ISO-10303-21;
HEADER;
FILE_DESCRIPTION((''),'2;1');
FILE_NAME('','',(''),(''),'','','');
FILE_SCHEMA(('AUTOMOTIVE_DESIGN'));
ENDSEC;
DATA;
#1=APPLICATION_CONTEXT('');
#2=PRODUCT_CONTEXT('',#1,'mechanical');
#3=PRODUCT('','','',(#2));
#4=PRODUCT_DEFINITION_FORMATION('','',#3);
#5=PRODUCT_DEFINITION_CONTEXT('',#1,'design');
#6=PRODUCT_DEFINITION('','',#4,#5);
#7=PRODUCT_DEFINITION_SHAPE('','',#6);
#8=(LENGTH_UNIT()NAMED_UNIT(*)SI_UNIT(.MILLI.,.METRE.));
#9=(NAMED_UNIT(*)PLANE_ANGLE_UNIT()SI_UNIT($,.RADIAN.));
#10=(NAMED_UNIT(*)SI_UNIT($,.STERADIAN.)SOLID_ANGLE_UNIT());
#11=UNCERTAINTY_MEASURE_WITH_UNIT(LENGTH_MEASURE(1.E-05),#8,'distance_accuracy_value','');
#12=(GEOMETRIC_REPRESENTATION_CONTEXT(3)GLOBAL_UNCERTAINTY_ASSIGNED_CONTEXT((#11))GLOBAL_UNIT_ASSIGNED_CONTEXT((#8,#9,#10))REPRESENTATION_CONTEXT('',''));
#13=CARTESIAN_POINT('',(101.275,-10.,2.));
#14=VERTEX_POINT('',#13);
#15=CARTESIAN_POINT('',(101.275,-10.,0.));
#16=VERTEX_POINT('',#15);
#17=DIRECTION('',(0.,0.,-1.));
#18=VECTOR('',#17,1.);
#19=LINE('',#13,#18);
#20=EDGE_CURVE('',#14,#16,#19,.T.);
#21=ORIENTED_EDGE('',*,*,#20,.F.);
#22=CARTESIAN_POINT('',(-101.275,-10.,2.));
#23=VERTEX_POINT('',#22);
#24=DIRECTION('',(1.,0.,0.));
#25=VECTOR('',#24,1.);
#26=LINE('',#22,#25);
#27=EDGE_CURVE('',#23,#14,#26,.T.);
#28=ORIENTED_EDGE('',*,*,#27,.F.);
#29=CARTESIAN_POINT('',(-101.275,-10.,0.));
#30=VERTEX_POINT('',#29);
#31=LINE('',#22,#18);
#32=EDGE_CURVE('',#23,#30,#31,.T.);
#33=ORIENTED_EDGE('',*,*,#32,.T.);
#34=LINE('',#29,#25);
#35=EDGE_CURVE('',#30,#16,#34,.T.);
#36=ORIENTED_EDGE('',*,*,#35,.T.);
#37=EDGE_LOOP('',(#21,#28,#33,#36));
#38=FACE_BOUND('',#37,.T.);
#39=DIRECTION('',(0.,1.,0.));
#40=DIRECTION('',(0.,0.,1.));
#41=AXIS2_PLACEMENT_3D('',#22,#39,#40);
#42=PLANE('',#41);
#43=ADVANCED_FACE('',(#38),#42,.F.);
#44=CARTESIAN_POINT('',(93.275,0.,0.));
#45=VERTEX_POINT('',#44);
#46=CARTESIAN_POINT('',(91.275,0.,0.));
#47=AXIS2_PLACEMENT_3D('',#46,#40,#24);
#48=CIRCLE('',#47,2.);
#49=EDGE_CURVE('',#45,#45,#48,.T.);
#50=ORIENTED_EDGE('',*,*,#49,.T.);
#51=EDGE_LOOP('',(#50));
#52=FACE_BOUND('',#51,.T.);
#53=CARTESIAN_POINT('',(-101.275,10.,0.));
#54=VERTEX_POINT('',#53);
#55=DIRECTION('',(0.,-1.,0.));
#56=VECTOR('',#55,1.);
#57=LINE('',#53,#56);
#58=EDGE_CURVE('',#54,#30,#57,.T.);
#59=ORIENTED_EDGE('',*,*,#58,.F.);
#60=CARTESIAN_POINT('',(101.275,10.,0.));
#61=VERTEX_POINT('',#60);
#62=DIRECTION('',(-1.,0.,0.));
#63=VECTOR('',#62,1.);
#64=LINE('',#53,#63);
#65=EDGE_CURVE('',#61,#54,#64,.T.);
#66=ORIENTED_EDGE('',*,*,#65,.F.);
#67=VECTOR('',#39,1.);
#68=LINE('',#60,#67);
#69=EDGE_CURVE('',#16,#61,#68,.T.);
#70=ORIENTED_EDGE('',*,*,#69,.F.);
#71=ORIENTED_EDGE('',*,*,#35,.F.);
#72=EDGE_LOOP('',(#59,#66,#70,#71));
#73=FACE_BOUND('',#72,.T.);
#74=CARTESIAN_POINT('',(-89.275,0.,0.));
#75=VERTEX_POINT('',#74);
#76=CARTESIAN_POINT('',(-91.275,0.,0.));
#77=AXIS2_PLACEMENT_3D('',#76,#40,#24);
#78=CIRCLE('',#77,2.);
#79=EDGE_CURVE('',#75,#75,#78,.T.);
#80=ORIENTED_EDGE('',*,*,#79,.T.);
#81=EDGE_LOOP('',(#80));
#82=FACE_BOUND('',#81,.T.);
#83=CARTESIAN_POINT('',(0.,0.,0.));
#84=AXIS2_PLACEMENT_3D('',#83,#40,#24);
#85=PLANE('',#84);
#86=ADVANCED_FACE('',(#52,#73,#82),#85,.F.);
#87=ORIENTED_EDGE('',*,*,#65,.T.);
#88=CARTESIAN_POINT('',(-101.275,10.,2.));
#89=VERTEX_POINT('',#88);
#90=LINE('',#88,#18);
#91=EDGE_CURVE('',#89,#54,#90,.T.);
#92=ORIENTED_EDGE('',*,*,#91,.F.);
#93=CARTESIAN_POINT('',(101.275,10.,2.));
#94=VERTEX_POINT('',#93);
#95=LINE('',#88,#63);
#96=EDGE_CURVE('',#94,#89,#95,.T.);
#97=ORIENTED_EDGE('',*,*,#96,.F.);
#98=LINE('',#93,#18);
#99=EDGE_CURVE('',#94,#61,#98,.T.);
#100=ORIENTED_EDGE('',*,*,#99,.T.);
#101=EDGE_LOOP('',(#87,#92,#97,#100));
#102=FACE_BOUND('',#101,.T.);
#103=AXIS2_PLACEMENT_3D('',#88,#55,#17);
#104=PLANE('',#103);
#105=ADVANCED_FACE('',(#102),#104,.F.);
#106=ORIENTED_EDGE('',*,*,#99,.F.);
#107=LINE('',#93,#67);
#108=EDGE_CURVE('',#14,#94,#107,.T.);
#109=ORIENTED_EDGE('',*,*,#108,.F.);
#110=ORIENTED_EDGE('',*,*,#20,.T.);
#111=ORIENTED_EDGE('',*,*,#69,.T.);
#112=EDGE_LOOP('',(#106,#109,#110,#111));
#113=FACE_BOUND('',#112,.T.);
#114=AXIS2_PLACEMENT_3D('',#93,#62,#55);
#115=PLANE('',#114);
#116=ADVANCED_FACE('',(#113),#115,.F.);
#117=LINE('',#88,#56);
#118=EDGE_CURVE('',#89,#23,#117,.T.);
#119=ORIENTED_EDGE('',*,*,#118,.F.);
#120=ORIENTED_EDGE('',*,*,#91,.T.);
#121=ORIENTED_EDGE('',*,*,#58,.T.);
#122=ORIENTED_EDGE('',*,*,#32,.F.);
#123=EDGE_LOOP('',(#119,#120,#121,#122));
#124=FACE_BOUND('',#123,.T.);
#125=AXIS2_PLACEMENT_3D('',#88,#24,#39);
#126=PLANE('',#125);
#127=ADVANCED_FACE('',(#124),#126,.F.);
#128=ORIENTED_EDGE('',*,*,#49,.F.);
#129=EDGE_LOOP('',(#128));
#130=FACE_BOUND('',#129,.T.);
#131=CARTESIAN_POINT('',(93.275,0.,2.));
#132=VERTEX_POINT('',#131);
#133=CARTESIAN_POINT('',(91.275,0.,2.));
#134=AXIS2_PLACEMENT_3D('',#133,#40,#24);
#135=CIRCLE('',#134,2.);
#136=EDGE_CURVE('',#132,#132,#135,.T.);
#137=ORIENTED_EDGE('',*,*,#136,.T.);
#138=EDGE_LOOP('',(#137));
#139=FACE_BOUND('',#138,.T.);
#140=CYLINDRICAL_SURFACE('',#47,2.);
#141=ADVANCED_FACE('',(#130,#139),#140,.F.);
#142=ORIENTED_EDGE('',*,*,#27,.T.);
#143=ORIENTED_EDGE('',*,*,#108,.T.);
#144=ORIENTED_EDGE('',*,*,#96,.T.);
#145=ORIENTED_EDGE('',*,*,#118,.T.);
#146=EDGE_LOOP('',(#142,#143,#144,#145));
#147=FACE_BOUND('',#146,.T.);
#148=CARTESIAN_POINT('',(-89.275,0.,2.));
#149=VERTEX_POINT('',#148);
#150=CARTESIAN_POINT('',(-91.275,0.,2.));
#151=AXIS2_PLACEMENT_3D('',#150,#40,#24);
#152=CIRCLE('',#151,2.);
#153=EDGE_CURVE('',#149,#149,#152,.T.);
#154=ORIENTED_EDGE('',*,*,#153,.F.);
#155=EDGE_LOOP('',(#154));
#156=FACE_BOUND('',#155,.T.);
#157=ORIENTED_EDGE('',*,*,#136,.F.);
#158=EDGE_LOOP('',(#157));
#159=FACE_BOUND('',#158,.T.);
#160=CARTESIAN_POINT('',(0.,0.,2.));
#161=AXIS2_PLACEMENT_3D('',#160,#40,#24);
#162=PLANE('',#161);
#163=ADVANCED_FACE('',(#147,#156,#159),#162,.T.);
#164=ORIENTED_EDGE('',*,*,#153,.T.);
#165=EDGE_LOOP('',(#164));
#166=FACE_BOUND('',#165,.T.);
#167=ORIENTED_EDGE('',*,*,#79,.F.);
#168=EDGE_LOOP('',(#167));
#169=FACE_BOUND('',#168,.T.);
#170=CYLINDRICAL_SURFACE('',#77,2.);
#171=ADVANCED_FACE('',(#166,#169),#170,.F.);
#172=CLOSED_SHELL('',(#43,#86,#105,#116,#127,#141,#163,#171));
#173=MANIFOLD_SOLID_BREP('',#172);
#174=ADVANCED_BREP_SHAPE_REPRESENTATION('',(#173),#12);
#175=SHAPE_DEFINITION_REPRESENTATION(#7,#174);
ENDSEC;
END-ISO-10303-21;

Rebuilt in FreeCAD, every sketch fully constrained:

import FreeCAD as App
import Part
import Sketcher
from FreeCAD import Vector
Q = App.Units.Quantity

doc = App.newDocument("Part")
body = doc.addObject("PartDesign::Body", "Body")

sketch1 = body.newObject("Sketcher::SketchObject", "Sketch")
sketch1.AttachmentSupport = (doc.getObject("XY_Plane"), [""])
sketch1.MapMode = "FlatFace"
sketch1.addGeometry(Part.LineSegment(Vector(-101, 10, 0), Vector(-101, -10, 0)), False)
sketch1.addGeometry(Part.LineSegment(Vector(-101, -10, 0), Vector(101, -10, 0)), False)
sketch1.addGeometry(Part.LineSegment(Vector(101, -10, 0), Vector(101, 10, 0)), False)
sketch1.addGeometry(Part.LineSegment(Vector(101, 10, 0), Vector(-101, 10, 0)), False)
sketch1.addConstraint(Sketcher.Constraint("Coincident", 0, 2, 1, 1))
sketch1.addConstraint(Sketcher.Constraint("Coincident", 1, 2, 2, 1))
sketch1.addConstraint(Sketcher.Constraint("Coincident", 2, 2, 3, 1))
sketch1.addConstraint(Sketcher.Constraint("Coincident", 3, 2, 0, 1))
sketch1.addConstraint(Sketcher.Constraint("Vertical", 0))
sketch1.addConstraint(Sketcher.Constraint("Horizontal", 1))
sketch1.addConstraint(Sketcher.Constraint("Vertical", 2))
sketch1.addConstraint(Sketcher.Constraint("Horizontal", 3))
sketch1.addConstraint(Sketcher.Constraint("Symmetric", 0, 2, 2, 2, -1, 1))
sketch1.addConstraint(Sketcher.Constraint("DistanceY", 0, 2, 0, 1, Q("20 mm")))
sketch1.addConstraint(Sketcher.Constraint("DistanceX", 1, 1, 1, 2, Q("202.55 mm")))
pad1 = body.newObject("PartDesign::Pad", "Pad")
pad1.Profile = sketch1
pad1.Length = 2

sketch2 = body.newObject("Sketcher::SketchObject", "Sketch001")
sketch2.AttachmentSupport = (doc.getObject("XY_Plane"), [""])
sketch2.MapMode = "FlatFace"
sketch2.AttachmentOffset = App.Placement(Vector(0, 0, 2), App.Rotation())
sketch2.addGeometry(Part.Circle(Vector(-91.3, 0, 0), Vector(0, 0, 1), 2), False)
sketch2.addGeometry(Part.Circle(Vector(91.3, 0, 0), Vector(0, 0, 1), 2), False)
sketch2.addConstraint(Sketcher.Constraint("Equal", 0, 1))
sketch2.addConstraint(Sketcher.Constraint("Symmetric", 0, 3, 1, 3, -1, 1))
sketch2.addConstraint(Sketcher.Constraint("PointOnObject", 0, 3, -1))
sketch2.addConstraint(Sketcher.Constraint("Diameter", 0, Q("4 mm")))
sketch2.addConstraint(Sketcher.Constraint("DistanceX", 0, 3, 1, 3, Q("182.55 mm")))
pocket1 = body.newObject("PartDesign::Pocket", "Pocket")
pocket1.Profile = sketch2
pocket1.Length = 2

doc.recompute()
